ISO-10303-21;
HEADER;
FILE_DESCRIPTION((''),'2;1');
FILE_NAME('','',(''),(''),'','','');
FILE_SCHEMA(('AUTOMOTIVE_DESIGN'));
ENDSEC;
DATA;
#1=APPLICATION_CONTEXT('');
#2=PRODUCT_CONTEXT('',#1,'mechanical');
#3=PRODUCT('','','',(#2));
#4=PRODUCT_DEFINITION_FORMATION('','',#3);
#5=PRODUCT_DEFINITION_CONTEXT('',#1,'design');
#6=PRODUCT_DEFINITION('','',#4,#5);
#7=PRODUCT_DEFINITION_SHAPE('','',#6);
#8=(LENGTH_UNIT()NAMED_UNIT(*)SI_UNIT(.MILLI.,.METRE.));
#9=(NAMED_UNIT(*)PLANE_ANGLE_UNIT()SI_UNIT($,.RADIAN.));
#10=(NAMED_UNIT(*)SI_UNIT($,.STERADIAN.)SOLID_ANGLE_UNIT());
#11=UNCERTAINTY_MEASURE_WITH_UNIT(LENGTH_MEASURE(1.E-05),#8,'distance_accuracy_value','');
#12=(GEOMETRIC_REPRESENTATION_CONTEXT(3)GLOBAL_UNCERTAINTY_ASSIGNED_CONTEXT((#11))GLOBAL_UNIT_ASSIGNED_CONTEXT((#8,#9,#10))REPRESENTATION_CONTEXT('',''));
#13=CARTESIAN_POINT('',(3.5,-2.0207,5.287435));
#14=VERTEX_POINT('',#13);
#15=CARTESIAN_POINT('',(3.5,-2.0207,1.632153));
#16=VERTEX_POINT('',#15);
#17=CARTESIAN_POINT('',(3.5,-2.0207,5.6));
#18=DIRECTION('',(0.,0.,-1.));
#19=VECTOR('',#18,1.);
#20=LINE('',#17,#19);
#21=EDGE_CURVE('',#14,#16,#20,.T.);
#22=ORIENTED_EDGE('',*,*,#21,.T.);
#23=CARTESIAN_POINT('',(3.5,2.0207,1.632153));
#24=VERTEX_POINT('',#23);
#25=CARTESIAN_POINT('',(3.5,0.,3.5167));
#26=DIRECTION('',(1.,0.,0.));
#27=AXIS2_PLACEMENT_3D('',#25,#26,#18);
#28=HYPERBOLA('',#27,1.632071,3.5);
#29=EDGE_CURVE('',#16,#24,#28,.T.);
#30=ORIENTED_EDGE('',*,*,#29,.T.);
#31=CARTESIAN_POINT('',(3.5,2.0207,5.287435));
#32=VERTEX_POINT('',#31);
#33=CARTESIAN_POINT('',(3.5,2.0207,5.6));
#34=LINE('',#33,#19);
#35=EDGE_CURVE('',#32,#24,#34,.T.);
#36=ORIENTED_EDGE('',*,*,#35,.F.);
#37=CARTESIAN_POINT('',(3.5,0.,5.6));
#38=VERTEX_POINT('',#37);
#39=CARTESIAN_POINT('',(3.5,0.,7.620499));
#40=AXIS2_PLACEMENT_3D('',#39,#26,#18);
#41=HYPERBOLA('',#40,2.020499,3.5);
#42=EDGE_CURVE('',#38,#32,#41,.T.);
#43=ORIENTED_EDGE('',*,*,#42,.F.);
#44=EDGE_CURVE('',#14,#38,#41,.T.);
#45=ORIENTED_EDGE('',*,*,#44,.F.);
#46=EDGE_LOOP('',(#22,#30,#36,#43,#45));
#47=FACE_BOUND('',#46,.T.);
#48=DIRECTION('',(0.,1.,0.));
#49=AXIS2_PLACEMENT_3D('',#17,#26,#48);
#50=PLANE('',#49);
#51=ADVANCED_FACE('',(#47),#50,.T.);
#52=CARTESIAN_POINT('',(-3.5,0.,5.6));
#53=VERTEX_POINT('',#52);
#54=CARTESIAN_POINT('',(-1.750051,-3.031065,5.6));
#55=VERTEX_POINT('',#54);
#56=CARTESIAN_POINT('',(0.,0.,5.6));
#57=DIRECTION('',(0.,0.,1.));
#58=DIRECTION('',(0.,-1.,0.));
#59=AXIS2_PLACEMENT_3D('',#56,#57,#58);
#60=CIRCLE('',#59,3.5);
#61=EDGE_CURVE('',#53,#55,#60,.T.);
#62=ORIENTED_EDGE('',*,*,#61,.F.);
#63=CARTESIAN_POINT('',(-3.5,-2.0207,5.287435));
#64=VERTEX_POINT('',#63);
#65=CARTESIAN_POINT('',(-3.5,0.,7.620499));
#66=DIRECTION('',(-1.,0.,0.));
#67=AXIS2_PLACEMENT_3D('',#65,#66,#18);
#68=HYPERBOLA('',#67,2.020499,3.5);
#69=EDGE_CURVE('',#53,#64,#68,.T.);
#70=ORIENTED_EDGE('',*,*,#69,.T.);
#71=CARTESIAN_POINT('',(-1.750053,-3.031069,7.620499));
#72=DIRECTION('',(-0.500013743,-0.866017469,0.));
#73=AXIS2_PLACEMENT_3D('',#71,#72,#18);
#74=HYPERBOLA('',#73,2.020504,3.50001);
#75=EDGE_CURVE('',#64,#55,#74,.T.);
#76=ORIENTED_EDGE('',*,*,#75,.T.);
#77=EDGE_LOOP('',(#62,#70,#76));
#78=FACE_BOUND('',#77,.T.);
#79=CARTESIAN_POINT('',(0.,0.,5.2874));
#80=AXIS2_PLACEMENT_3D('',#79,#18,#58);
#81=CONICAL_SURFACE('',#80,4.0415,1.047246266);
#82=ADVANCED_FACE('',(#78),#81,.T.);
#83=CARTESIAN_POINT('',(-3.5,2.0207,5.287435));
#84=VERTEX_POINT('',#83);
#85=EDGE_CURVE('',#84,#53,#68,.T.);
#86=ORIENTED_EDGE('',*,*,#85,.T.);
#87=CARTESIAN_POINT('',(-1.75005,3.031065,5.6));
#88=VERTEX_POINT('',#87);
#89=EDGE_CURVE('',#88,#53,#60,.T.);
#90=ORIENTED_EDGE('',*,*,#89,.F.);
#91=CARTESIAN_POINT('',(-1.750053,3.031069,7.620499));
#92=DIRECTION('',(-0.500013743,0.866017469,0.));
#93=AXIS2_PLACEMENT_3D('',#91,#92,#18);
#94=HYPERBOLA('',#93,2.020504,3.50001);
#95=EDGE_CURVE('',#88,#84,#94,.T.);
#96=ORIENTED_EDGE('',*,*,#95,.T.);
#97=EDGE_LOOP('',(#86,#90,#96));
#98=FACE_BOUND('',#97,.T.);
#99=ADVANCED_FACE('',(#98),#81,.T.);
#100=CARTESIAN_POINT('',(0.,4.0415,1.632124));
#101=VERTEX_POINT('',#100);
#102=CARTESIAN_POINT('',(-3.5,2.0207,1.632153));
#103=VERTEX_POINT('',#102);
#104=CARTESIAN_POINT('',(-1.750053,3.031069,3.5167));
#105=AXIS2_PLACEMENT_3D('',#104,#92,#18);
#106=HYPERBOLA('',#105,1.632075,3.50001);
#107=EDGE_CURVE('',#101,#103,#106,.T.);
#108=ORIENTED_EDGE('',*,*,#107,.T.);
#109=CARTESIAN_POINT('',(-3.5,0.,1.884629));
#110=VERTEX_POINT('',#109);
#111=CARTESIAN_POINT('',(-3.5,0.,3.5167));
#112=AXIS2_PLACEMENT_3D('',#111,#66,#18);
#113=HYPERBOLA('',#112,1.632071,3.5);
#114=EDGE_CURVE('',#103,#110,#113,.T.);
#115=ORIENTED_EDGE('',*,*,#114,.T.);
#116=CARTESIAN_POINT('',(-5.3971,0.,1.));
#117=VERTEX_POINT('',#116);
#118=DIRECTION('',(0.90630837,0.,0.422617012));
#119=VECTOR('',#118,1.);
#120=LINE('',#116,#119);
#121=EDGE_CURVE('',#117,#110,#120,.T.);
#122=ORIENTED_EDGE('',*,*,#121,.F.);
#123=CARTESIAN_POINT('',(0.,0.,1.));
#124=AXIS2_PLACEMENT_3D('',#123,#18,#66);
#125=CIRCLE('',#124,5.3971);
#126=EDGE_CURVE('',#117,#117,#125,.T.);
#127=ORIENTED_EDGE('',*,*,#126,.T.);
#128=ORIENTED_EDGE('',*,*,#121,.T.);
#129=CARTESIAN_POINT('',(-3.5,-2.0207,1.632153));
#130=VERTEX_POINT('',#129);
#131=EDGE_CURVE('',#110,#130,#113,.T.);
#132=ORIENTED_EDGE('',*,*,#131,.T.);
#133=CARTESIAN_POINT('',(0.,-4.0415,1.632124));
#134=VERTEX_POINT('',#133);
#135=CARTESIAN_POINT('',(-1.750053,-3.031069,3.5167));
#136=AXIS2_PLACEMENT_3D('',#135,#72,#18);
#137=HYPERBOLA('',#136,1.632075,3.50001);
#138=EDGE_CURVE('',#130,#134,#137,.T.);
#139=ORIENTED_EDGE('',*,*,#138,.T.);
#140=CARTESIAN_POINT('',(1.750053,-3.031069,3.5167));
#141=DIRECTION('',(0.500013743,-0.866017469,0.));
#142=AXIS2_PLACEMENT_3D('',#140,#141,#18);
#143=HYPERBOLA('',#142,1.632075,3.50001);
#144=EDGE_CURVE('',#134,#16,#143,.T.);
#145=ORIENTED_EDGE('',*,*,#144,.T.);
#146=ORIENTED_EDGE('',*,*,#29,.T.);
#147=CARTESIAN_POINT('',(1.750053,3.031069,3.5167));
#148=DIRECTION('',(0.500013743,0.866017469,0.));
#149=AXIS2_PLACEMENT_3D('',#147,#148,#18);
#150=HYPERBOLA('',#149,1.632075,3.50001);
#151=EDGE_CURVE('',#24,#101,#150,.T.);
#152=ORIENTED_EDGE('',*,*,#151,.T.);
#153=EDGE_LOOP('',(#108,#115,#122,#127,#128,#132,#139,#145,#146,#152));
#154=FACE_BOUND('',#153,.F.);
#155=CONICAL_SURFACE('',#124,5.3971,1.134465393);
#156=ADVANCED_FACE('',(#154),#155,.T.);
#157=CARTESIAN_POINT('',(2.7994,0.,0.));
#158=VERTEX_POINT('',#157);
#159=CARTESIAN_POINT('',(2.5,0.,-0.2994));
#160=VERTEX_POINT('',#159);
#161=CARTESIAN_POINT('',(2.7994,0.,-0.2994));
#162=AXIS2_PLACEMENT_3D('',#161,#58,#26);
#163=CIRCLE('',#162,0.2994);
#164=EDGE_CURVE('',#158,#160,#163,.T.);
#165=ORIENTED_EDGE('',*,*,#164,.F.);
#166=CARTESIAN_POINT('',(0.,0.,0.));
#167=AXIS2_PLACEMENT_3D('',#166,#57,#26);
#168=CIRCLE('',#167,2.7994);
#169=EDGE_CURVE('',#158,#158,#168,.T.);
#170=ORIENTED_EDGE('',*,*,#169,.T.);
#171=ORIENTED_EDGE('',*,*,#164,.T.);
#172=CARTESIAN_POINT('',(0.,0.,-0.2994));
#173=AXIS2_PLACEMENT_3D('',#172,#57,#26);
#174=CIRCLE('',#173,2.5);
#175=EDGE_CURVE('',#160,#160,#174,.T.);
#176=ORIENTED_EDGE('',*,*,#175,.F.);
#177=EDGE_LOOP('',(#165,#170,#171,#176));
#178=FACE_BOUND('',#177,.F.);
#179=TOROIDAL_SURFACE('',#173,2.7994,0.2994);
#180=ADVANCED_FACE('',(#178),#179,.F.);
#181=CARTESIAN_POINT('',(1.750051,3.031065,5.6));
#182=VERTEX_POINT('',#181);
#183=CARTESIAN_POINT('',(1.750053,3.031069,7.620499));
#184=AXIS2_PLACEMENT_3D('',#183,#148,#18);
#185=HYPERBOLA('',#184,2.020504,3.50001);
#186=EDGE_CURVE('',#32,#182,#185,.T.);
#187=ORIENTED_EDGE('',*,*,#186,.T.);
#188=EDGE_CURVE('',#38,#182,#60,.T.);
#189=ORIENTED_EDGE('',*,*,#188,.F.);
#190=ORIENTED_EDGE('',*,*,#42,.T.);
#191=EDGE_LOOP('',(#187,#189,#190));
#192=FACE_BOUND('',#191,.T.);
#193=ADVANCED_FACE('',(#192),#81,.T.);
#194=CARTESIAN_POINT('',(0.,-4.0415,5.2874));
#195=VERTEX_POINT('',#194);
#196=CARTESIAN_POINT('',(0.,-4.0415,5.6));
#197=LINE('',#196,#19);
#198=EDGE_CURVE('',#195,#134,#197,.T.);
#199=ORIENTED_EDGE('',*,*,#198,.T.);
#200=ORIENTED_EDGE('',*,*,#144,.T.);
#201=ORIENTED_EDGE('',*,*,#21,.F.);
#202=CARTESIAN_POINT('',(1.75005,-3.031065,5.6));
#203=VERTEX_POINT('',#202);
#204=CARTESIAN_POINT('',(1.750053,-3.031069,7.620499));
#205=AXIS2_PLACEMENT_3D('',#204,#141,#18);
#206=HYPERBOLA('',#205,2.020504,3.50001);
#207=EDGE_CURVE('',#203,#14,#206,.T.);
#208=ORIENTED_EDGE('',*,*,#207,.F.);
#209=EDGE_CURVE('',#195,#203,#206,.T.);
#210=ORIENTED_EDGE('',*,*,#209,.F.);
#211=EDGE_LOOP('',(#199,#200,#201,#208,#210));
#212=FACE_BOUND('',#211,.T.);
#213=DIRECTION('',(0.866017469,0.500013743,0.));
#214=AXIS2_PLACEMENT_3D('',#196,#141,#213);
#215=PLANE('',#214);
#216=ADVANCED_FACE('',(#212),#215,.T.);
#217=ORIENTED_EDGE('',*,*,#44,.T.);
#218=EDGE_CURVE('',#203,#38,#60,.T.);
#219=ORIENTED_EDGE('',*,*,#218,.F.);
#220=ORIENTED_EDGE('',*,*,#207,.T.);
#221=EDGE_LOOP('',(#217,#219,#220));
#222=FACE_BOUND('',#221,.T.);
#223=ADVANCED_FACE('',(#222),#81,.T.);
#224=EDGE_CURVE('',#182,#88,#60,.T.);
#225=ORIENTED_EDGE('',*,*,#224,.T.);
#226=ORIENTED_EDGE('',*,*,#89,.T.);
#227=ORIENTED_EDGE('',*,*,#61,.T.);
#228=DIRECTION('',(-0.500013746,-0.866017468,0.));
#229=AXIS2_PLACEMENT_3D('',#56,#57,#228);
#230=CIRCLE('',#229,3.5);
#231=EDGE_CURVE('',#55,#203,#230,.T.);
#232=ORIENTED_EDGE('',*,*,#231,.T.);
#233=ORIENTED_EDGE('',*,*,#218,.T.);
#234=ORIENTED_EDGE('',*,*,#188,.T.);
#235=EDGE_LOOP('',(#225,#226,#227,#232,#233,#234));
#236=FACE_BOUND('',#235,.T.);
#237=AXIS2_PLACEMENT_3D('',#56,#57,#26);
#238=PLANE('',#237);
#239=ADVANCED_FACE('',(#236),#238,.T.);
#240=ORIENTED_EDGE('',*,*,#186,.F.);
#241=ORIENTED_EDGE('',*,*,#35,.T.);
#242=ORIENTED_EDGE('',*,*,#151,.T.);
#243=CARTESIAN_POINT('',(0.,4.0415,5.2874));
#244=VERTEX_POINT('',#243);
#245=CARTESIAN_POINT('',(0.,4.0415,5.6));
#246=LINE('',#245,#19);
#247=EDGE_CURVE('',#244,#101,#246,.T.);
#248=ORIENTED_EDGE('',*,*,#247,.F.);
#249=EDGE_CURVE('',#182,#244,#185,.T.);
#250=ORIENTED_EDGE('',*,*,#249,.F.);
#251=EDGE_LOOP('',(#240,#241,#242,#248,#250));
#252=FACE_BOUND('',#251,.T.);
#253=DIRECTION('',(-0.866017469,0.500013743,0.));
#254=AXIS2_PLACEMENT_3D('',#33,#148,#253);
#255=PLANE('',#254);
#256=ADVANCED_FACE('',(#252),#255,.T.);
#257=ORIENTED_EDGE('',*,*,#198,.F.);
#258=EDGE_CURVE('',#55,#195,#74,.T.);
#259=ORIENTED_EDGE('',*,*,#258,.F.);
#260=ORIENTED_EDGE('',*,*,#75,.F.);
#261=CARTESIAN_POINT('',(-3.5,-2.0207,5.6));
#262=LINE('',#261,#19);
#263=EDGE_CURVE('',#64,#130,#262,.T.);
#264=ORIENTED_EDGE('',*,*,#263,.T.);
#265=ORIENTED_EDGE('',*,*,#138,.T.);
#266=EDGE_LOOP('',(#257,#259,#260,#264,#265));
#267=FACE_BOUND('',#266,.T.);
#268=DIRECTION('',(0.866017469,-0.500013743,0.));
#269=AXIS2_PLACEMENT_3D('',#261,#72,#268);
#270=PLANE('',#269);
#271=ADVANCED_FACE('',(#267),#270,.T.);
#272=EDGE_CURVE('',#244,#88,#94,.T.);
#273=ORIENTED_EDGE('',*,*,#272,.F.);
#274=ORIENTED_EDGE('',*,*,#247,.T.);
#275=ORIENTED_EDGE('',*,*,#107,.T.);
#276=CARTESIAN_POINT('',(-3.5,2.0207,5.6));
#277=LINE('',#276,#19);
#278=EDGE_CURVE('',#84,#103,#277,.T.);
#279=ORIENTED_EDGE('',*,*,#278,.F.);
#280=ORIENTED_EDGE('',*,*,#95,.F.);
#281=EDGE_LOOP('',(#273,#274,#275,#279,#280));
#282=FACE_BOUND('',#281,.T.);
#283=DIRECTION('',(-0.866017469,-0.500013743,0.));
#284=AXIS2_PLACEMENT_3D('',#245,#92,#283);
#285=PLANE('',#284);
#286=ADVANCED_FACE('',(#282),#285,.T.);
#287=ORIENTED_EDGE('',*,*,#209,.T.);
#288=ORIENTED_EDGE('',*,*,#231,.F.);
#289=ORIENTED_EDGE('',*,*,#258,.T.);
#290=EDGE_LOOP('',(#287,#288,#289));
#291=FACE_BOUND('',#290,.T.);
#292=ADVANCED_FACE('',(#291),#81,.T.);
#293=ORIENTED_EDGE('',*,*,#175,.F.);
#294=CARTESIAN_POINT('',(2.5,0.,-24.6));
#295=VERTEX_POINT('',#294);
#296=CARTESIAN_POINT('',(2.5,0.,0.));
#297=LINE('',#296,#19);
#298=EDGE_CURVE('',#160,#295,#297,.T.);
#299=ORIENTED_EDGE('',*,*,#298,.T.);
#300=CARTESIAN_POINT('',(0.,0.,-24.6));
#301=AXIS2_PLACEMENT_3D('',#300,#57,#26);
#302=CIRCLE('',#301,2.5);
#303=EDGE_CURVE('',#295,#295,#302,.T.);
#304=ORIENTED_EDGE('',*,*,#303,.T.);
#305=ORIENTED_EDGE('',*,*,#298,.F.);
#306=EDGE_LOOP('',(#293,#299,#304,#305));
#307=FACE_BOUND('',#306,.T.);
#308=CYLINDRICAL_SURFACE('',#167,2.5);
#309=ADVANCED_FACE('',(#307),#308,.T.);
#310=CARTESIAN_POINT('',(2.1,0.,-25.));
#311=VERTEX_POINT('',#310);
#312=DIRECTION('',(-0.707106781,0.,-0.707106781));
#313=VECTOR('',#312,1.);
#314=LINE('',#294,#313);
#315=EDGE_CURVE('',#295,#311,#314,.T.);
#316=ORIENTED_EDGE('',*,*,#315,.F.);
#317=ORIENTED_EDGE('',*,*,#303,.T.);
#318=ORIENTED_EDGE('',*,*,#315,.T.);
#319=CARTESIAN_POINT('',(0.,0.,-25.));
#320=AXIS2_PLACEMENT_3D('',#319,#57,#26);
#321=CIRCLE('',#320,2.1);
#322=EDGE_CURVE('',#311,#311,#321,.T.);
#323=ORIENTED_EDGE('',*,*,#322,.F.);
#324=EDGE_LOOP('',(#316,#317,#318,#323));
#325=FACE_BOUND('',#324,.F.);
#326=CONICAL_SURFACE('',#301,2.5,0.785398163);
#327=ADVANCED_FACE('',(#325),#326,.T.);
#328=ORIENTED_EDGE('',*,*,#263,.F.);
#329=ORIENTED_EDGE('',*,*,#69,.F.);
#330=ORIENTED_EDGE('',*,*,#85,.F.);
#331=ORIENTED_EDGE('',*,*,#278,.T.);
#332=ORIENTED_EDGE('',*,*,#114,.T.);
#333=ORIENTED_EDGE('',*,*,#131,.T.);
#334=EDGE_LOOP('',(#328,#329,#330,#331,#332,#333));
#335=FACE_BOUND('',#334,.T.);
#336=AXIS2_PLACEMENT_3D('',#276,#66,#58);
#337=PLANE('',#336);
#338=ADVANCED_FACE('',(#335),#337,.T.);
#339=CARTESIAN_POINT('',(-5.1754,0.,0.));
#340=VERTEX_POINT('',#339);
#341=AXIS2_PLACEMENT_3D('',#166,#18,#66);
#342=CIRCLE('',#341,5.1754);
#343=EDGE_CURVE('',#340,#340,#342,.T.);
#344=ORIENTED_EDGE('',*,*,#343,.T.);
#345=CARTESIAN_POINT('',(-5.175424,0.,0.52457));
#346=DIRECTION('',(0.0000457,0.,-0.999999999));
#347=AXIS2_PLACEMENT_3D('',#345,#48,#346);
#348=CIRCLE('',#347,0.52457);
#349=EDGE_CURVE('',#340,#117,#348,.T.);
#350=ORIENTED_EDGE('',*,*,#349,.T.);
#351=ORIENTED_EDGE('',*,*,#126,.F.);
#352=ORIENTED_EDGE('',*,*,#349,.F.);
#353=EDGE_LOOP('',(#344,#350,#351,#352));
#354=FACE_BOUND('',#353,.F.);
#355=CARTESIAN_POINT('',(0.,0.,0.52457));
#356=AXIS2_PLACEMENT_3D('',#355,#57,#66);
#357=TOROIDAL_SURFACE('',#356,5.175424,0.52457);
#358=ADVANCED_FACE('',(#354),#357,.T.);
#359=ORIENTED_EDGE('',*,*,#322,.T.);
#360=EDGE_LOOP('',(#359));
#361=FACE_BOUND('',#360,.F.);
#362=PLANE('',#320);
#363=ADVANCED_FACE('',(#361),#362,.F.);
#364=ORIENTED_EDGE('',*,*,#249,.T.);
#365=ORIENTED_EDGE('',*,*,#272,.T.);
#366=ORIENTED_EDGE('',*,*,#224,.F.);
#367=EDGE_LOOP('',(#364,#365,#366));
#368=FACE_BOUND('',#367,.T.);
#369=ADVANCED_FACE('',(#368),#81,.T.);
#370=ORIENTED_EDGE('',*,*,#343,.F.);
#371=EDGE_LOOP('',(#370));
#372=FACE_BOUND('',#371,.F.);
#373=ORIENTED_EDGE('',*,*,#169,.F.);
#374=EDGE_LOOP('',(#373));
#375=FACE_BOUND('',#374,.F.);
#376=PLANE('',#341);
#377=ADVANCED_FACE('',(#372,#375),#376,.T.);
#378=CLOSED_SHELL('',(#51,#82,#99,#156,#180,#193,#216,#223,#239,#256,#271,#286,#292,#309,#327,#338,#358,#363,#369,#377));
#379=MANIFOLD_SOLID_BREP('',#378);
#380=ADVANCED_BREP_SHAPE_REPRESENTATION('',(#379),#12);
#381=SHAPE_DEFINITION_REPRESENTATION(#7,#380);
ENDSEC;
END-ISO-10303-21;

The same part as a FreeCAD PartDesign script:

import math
import FreeCAD as App
import Part
import Sketcher

V = App.Vector
Q = App.Units.Quantity


def edges_at(feature, points):
    """Names of the edges that pass closest to the given points."""
    edges = feature.Shape.Edges
    near = lambda p: min(range(len(edges)), key=lambda i: edges[i].distToShape(Part.Vertex(*p))[0])
    return sorted({f"Edge{near(p) + 1}" for p in points})

doc = App.newDocument("Part")
body = doc.addObject("PartDesign::Body", "Body")

# Sketch on XY plane
sketch1 = body.newObject("Sketcher::SketchObject", "Sketch")
sketch1.AttachmentSupport = (doc.getObject("XY_Plane"), [""])
sketch1.MapMode = "FlatFace"
sketch1.addGeometry(Part.Circle(V(0, 0, 0), V(0, 0, 1), 2.5), False)
sketch1.addConstraint([
    Sketcher.Constraint("Coincident", 0, 3, -1, 1),
    Sketcher.Constraint("Diameter", 0, 5.0),
])
pad1 = body.newObject("PartDesign::Pad", "Pad")
pad1.Profile = sketch1
pad1.Length = 25
pad1.Reversed = True
doc.recompute()

chamfer = body.newObject("PartDesign::Chamfer", "Chamfer")
chamfer.Base = (pad1, edges_at(pad1, [(-2.5, 0, -25)]))
chamfer.Size = 0.4

# Sketch on XY plane
sketch2 = body.newObject("Sketcher::SketchObject", "Sketch001")
sketch2.AttachmentSupport = (doc.getObject("XY_Plane"), [""])
sketch2.MapMode = "FlatFace"
sketch2.addGeometry(Part.Circle(V(0, 0, 0), V(0, 0, 1), 3.1), False)
sketch2.addConstraint([
    Sketcher.Constraint("Coincident", 0, 3, -1, 1),
    Sketcher.Constraint("Diameter", 0, 6.3),
])
pad2 = body.newObject("PartDesign::Pad", "Pad001")
pad2.Profile = sketch2
pad2.Length = 5.6

# Sketch on XZ plane
sketch3 = body.newObject("Sketcher::SketchObject", "Sketch002")
sketch3.AttachmentSupport = (doc.getObject("XZ_Plane"), [""])
sketch3.MapMode = "FlatFace"
sketch3.addGeometry([
    Part.LineSegment(V(0, 3.5, 0), V(0, 0, 0)),
    Part.LineSegment(V(0, 0, 0), V(-5.2, 0, 0)),
    Part.ArcOfCircle(Part.Circle(V(-5.2, 0.5, 0), V(0, 0, 1), 0.5), math.radians(115), math.radians(270)),
    Part.LineSegment(V(-5.4, 1, 0), V(0, 3.5, 0)),
], False)
sketch3.addConstraint([
    Sketcher.Constraint("Coincident", 0, 2, 1, 1),
    Sketcher.Constraint("Tangent", 1, 2, 2, 2),
    Sketcher.Constraint("Tangent", 2, 1, 3, 1),
    Sketcher.Constraint("Coincident", 3, 2, 0, 1),
    Sketcher.Constraint("Vertical", 0),
    Sketcher.Constraint("Horizontal", 1),
    Sketcher.Constraint("Coincident", 0, 2, -1, 1),
    Sketcher.Constraint("Angle", 3, Q("25 deg")),
    Sketcher.Constraint("DistanceY", -1, 1, 2, 1, 1.0),
    Sketcher.Constraint("Distance", 3, 5.955),
])
revolution = body.newObject("PartDesign::Revolution", "Revolution")
revolution.Profile = sketch3
revolution.ReferenceAxis = (sketch3, ["V_Axis"])
revolution.Angle = 360
doc.recompute()

fillet = body.newObject("PartDesign::Fillet", "Fillet")
fillet.Base = (revolution, edges_at(revolution, [(-2.5, 0, 0)]))
fillet.Radius = 0.2994

# Sketch on XY plane
sketch4 = body.newObject("Sketcher::SketchObject", "Sketch003")
sketch4.AttachmentSupport = (doc.getObject("XY_Plane"), [""])
sketch4.MapMode = "FlatFace"
sketch4.AttachmentOffset = App.Placement(V(0, 0, 5.6), App.Rotation())
sketch4.addGeometry([
    Part.LineSegment(V(0, 4, 0), V(-3.5, 2, 0)),  # 0
    Part.LineSegment(V(-3.5, 2, 0), V(-3.5, -2, 0)),  # 1
    Part.LineSegment(V(-3.5, -2, 0), V(0, -4, 0)),  # 2
    Part.LineSegment(V(0, -4, 0), V(3.5, -2, 0)),  # 3
    Part.LineSegment(V(3.5, -2, 0), V(3.5, 2, 0)),  # 4
    Part.LineSegment(V(3.5, 2, 0), V(0, 4, 0)),  # 5
], False)
sketch4.addConstraint([
    Sketcher.Constraint("Coincident", 0, 2, 1, 1),
    Sketcher.Constraint("Coincident", 1, 2, 2, 1),
    Sketcher.Constraint("Coincident", 2, 2, 3, 1),
    Sketcher.Constraint("Coincident", 3, 2, 4, 1),
    Sketcher.Constraint("Coincident", 4, 2, 5, 1),
    Sketcher.Constraint("Coincident", 5, 2, 0, 1),
    Sketcher.Constraint("Vertical", 1),
    Sketcher.Constraint("Vertical", 4),
    Sketcher.Constraint("Symmetric", 0, 2, 3, 2, -1, 1),
    Sketcher.Constraint("Symmetric", 2, 2, 5, 2, -1, 1),
    Sketcher.Constraint("PointOnObject", 2, 2, -2),
    Sketcher.Constraint("Parallel", 2, 5),
    Sketcher.Constraint("Horizontal", 1, 2, 3, 2),
    Sketcher.Constraint("DistanceX", 1, 2, 3, 2, 7.0),
    Sketcher.Constraint("Angle", 0, Q("-149.999 deg")),
    Sketcher.Constraint("DistanceY", 1, 2, 1, 1, 4.0414),
])
pad3 = body.newObject("PartDesign::Pad", "Pad002")
pad3.Profile = sketch4
pad3.Length = 5.6
pad3.Reversed = True

# Sketch on YZ plane
sketch5 = body.newObject("Sketcher::SketchObject", "Sketch004")
sketch5.AttachmentSupport = (doc.getObject("YZ_Plane"), [""])
sketch5.MapMode = "FlatFace"
sketch5.addGeometry([
    Part.LineSegment(V(-3.5, 5.6, 0), V(-4.04, 5.6, 0)),
    Part.LineSegment(V(-4.04, 5.6, 0), V(-4.04, 5.29, 0)),
    Part.LineSegment(V(-4.04, 5.29, 0), V(-3.5, 5.6, 0)),
], False)
sketch5.addConstraint([
    Sketcher.Constraint("Coincident", 0, 2, 1, 1),
    Sketcher.Constraint("Coincident", 1, 2, 2, 1),
    Sketcher.Constraint("Coincident", 2, 2, 0, 1),
    Sketcher.Constraint("Horizontal", 0),
    Sketcher.Constraint("Vertical", 1),
    Sketcher.Constraint("DistanceX", 2, 2, -1, 1, 3.5),
    Sketcher.Constraint("DistanceY", -1, 1, 0, 2, 5.6),
    Sketcher.Constraint("DistanceX", 0, 2, 0, 1, 0.5415),
    Sketcher.Constraint("DistanceY", 1, 2, 1, 1, 0.3126),
])
groove = body.newObject("PartDesign::Groove", "Groove")
groove.Profile = sketch5
groove.ReferenceAxis = (sketch5, ["V_Axis"])
groove.Angle = 360

doc.recompute()
